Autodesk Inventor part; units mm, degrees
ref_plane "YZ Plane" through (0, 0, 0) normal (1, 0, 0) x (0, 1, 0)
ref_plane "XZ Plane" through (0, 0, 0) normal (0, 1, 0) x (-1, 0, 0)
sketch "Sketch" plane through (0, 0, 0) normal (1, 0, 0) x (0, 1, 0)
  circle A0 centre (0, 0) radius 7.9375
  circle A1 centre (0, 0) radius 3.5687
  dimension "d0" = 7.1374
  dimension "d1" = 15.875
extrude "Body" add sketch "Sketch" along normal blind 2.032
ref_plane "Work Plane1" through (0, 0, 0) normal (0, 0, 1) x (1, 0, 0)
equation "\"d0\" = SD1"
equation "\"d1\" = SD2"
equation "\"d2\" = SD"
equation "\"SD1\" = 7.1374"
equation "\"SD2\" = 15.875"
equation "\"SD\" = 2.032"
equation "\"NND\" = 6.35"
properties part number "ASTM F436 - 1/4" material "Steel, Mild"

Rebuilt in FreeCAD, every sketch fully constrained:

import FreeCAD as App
import Part
import Sketcher
from FreeCAD import Vector
Q = App.Units.Quantity

doc = App.newDocument("Part")
body = doc.addObject("PartDesign::Body", "Body")

sketch1 = body.newObject("Sketcher::SketchObject", "Sketch")
sketch1.AttachmentSupport = (doc.getObject("YZ_Plane"), [""])
sketch1.MapMode = "FlatFace"
sketch1.addGeometry(Part.Circle(Vector(0, 0, 0), Vector(0, 0, 1), 7.9375), False)
sketch1.addGeometry(Part.Circle(Vector(0, 0, 0), Vector(0, 0, 1), 3.5687), False)
sketch1.addConstraint(Sketcher.Constraint("Coincident", 0, 3, -1, 1))
sketch1.addConstraint(Sketcher.Constraint("Coincident", 1, 3, -1, 1))
sketch1.addConstraint(Sketcher.Constraint("Diameter", 0, Q("0.625 in")))
sketch1.addConstraint(Sketcher.Constraint("Diameter", 1, Q("0.281 in")))
pad1 = body.newObject("PartDesign::Pad", "Pad")
pad1.Profile = sketch1
pad1.Length = Q("0.08 in")

doc.recompute()
